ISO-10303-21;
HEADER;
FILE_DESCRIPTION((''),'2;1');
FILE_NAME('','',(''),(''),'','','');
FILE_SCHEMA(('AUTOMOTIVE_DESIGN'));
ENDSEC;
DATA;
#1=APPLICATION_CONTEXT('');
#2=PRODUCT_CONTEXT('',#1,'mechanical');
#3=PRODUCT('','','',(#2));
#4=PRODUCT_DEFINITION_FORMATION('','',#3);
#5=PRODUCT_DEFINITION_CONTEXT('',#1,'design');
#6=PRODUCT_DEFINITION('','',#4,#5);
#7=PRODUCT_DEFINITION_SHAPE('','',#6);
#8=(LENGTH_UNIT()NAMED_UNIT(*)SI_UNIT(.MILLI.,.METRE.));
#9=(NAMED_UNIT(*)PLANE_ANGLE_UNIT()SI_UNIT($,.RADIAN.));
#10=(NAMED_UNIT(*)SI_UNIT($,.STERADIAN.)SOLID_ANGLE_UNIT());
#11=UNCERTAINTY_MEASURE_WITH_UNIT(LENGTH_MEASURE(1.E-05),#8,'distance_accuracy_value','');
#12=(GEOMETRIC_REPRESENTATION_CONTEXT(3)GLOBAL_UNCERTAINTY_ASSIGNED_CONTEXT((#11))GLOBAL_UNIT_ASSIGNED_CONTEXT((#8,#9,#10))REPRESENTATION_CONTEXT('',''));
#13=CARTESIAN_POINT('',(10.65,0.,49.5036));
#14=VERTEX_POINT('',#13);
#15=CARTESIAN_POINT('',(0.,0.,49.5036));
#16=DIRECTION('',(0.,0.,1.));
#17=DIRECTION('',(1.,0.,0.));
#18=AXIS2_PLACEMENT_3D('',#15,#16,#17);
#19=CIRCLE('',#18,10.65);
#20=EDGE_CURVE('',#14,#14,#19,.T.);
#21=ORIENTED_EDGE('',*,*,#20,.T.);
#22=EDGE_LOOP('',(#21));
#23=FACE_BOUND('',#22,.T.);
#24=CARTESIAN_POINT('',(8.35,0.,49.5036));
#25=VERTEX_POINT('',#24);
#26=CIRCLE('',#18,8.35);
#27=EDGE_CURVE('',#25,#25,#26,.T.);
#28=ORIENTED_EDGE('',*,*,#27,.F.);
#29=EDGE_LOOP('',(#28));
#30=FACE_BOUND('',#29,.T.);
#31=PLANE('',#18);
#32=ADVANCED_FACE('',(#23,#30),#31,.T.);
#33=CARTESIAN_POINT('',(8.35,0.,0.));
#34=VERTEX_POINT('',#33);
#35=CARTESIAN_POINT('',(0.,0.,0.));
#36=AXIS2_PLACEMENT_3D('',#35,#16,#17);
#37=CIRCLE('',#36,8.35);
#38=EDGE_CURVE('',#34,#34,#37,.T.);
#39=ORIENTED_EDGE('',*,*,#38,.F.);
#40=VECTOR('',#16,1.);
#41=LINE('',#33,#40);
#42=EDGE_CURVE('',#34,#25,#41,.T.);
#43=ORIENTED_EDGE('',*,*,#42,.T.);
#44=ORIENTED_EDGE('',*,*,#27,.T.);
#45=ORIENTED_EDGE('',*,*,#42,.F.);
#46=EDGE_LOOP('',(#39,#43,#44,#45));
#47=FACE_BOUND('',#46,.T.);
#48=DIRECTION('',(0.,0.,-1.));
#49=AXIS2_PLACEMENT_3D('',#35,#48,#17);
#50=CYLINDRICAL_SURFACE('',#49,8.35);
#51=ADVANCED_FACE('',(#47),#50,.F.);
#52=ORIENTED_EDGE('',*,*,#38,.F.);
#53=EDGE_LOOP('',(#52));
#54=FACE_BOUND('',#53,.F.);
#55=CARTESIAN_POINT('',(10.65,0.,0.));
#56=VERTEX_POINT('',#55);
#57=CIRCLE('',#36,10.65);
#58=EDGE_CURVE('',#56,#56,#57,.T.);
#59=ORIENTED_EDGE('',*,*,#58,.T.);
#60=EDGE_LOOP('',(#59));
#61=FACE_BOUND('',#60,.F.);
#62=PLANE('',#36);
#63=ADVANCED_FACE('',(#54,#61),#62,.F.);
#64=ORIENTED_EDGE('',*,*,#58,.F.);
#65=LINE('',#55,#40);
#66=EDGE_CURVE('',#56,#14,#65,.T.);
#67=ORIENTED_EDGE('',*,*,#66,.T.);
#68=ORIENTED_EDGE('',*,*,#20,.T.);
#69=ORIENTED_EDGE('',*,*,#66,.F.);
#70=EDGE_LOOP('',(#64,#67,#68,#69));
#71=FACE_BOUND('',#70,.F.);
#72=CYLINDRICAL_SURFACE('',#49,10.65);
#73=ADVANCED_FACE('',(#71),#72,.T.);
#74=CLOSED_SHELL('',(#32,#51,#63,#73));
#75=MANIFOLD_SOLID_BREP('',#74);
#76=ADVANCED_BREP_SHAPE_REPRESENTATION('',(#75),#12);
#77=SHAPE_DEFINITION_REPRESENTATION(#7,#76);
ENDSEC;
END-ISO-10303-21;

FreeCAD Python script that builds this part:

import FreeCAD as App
import Part
import Sketcher
from FreeCAD import Vector
Q = App.Units.Quantity

doc = App.newDocument("Part")
body = doc.addObject("PartDesign::Body", "Body")

sketch1 = body.newObject("Sketcher::SketchObject", "Sketch")
sketch1.AttachmentSupport = (doc.getObject("XY_Plane"), [""])
sketch1.MapMode = "FlatFace"
sketch1.addGeometry(Part.Circle(Vector(0, 0, 0), Vector(0, 0, 1), 10.65), False)
sketch1.addGeometry(Part.Circle(Vector(0, 0, 0), Vector(0, 0, 1), 8.35), False)
sketch1.addConstraint(Sketcher.Constraint("Coincident", 0, 3, -1, 1))
sketch1.addConstraint(Sketcher.Constraint("Coincident", 1, 3, -1, 1))
sketch1.addConstraint(Sketcher.Constraint("Diameter", 0, Q("21.3 mm")))
sketch1.addConstraint(Sketcher.Constraint("Diameter", 1, Q("16.7 mm")))
pad1 = body.newObject("PartDesign::Pad", "Pad")
pad1.Profile = sketch1
pad1.Length = 49.5036

doc.recompute()
